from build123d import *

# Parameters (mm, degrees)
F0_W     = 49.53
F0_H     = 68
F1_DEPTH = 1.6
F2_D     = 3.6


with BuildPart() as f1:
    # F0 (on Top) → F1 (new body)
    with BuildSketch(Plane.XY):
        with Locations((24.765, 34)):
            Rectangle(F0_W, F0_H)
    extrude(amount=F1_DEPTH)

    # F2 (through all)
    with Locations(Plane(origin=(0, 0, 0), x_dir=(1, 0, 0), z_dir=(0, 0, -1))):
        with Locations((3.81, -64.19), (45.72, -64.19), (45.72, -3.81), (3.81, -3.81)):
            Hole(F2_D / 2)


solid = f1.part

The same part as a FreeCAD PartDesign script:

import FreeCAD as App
import Part
import Sketcher
Q = App.Units.Quantity


def add_polygon(sketch, points):
    """Adds a closed chain of lines whose ends are joined by coincident constraints."""
    first, n = sketch.GeometryCount, len(points)
    for a, b in zip(points, points[1:] + points[:1]):
        sketch.addGeometry(Part.LineSegment(App.Vector(*a, 0), App.Vector(*b, 0)), False)
    for i in range(n):
        sketch.addConstraint(Sketcher.Constraint("Coincident", first + i, 2, first + (i + 1) % n, 1))

doc = App.newDocument("Part")
params = doc.addObject("Spreadsheet::Sheet", "Params")
for row, (alias, value) in enumerate([
    ("sketch1_height", "68 mm"),
    ("sketch1_width", "49.53 mm"),
    ("pad1_length", "1.6 mm"),
    ("sketch2_diameter", "3.6 mm"),
    ("hole_diameter", "3.6 mm"),
], start=1):
    params.set(f"A{row}", alias)
    params.set(f"B{row}", "=" + value)
    params.setAlias(f"B{row}", alias)

body = doc.addObject("PartDesign::Body", "Body")

# Sketch on XY plane
sketch1 = doc.addObject("Sketcher::SketchObject", "Sketch")
body.addObject(sketch1)
sketch1.AttachmentSupport = (doc.XY_Plane, [""])
sketch1.MapMode = "FlatFace"
add_polygon(sketch1, [(0, 68), (0, 0), (50, 0), (50, 68)])  # lines 0-3
sketch1.addConstraint([
    Sketcher.Constraint("Vertical", 0),
    Sketcher.Constraint("Horizontal", 1),
    Sketcher.Constraint("Vertical", 2),
    Sketcher.Constraint("Horizontal", 3),
    Sketcher.Constraint("Coincident", 0, 2, -1, 1),
    Sketcher.Constraint("DistanceY", 0, 2, 0, 1, Q("68 mm")),
    Sketcher.Constraint("DistanceX", 1, 1, 1, 2, Q("49.53 mm")),
])
sketch1.setExpression("Constraints[9]", "Params.sketch1_height")
sketch1.setExpression("Constraints[10]", "Params.sketch1_width")
pad1 = doc.addObject("PartDesign::Pad", "Pad")
body.addObject(pad1)
pad1.Profile = sketch1
pad1.setExpression("Length", "Params.pad1_length")

# Sketch on XY plane
sketch2 = doc.addObject("Sketcher::SketchObject", "Sketch001")
body.addObject(sketch2)
sketch2.AttachmentSupport = (doc.XY_Plane, [""])
sketch2.MapMode = "FlatFace"
sketch2.addGeometry([
    Part.Circle(App.Vector(3.8, 64.2, 0), App.Vector(0, 0, 1), 1.8),
    Part.Circle(App.Vector(45.7, 64.2, 0), App.Vector(0, 0, 1), 1.8),
    Part.Circle(App.Vector(45.7, 3.8, 0), App.Vector(0, 0, 1), 1.8),
    Part.Circle(App.Vector(3.8, 3.8, 0), App.Vector(0, 0, 1), 1.8),
], False)
sketch2.addConstraint([
    Sketcher.Constraint("Equal", 0, 1),
    Sketcher.Constraint("Equal", 1, 2),
    Sketcher.Constraint("Equal", 2, 3),
    Sketcher.Constraint("Horizontal", 0, 3, 1, 3),
    Sketcher.Constraint("Horizontal", 2, 3, 3, 3),
    Sketcher.Constraint("Vertical", 1, 3, 2, 3),
    Sketcher.Constraint("Vertical", 0, 3, 3, 3),
    Sketcher.Constraint("Diameter", 0, Q("3.6 mm")),
    Sketcher.Constraint("DistanceX", -1, 1, 0, 3, Q("3.81 mm")),
    Sketcher.Constraint("DistanceY", -1, 1, 0, 3, Q("64.19 mm")),
    Sketcher.Constraint("DistanceX", -1, 1, 1, 3, Q("45.72 mm")),
    Sketcher.Constraint("DistanceY", -1, 1, 2, 3, Q("3.81 mm")),
])
sketch2.setExpression("Constraints[7]", "Params.sketch2_diameter")
doc.recompute()
hole = doc.addObject("PartDesign::Hole", "Hole")
body.addObject(hole)
hole.Profile = sketch2
hole.ThreadType = "None"
hole.setExpression("Diameter", "Params.hole_diameter")
hole.DepthType = "ThroughAll"
hole.Reversed = True

doc.recompute()
